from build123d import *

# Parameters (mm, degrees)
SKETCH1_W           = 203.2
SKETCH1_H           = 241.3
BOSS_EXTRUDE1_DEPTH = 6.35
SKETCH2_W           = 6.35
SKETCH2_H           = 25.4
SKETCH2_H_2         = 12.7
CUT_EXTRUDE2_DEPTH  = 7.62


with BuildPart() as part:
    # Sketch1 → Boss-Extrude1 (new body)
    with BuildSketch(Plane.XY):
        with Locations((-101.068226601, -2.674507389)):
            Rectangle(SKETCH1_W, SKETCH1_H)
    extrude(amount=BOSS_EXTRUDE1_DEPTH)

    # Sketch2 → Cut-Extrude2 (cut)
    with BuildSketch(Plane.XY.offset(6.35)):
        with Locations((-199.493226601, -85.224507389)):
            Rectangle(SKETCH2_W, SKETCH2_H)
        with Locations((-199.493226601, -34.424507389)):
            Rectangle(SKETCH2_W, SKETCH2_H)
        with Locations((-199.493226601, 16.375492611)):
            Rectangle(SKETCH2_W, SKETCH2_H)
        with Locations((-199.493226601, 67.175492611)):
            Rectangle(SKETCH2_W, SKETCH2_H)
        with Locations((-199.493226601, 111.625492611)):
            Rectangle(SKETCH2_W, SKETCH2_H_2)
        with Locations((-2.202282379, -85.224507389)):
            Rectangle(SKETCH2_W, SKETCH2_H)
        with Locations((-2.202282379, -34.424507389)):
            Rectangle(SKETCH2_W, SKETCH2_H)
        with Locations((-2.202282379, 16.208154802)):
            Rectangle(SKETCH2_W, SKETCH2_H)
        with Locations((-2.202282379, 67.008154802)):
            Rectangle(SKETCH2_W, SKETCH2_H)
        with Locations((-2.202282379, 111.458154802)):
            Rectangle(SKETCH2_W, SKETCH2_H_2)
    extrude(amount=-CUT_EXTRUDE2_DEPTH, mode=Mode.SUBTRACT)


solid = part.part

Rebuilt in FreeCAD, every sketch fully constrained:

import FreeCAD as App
import Part
import Sketcher
Q = App.Units.Quantity


def add_polygon(sketch, points):
    """Adds a closed chain of lines whose ends are joined by coincident constraints."""
    first, n = sketch.GeometryCount, len(points)
    for a, b in zip(points, points[1:] + points[:1]):
        sketch.addGeometry(Part.LineSegment(App.Vector(*a, 0), App.Vector(*b, 0)), False)
    for i in range(n):
        sketch.addConstraint(Sketcher.Constraint("Coincident", first + i, 2, first + (i + 1) % n, 1))

doc = App.newDocument("Part")
params = doc.addObject("Spreadsheet::Sheet", "Params")
for row, (alias, value) in enumerate([
    ("sketch1_width", "8 in"),
    ("sketch1_height", "9.5 in"),
    ("pad1_length", "0.25 in"),
    ("sketch2_height", "1 in"),
    ("sketch2_height2", "0.5 in"),
    ("sketch2_width", "0.25 in"),
    ("pocket1_length", "0.3 in"),
], start=1):
    params.set(f"A{row}", alias)
    params.set(f"B{row}", "=" + value)
    params.setAlias(f"B{row}", alias)

body = doc.addObject("PartDesign::Body", "Body")

# Sketch on XY plane
sketch1 = doc.addObject("Sketcher::SketchObject", "Sketch")
body.addObject(sketch1)
sketch1.AttachmentSupport = (doc.XY_Plane, [""])
sketch1.MapMode = "FlatFace"
add_polygon(sketch1, [(-203, 118), (-203, -123), (1, -123), (1, 118)])  # lines 0-3
sketch1.addConstraint(Sketcher.Constraint("Vertical", 0))
sketch1.addConstraint(Sketcher.Constraint("Horizontal", 1))
sketch1.addConstraint(Sketcher.Constraint("Vertical", 2))
sketch1.addConstraint(Sketcher.Constraint("Horizontal", 3))
sketch1.addConstraint(Sketcher.Constraint("DistanceX", 1, 1, 1, 2, Q("8 in")))
sketch1.addConstraint(Sketcher.Constraint("DistanceY", 0, 2, 0, 1, Q("9.5 in")))
sketch1.addConstraint(Sketcher.Constraint("DistanceX", 0, 2, -1, 1, 202.668227))
sketch1.addConstraint(Sketcher.Constraint("DistanceY", 0, 2, -1, 1, 123.324507))
sketch1.setExpression("Constraints[8]", "Params.sketch1_width")
sketch1.setExpression("Constraints[9]", "Params.sketch1_height")
pad1 = doc.addObject("PartDesign::Pad", "Pad")
body.addObject(pad1)
pad1.Profile = sketch1
pad1.setExpression("Length", "Params.pad1_length")

# Sketch on XY plane
sketch2 = doc.addObject("Sketcher::SketchObject", "Sketch001")
body.addObject(sketch2)
sketch2.AttachmentSupport = (doc.XY_Plane, [""])
sketch2.MapMode = "FlatFace"
sketch2.AttachmentOffset = App.Placement(App.Vector(0, 0, 0.25 * 25.4), App.Rotation())
add_polygon(sketch2, [(-203, -73), (-203, -98), (-196, -98), (-196, -73)])  # lines 0-3
add_polygon(sketch2, [(-203, -22), (-203, -47), (-196, -47), (-196, -22)])  # lines 4-7
add_polygon(sketch2, [(-203, 29), (-203, 4), (-196, 4), (-196, 29)])  # lines 8-11
add_polygon(sketch2, [(-203, 80), (-203, 54), (-196, 54), (-196, 80)])  # lines 12-15
add_polygon(sketch2, [(-203, 118), (-203, 105), (-196, 105), (-196, 118)])  # lines 16-19
add_polygon(sketch2, [(-5, -73), (-5, -98), (1, -98), (1, -73)])  # lines 20-23
add_polygon(sketch2, [(-5, -22), (-5, -47), (1, -47), (1, -22)])  # lines 24-27
add_polygon(sketch2, [(-5, 29), (-5, 4), (1, 4), (1, 29)])  # lines 28-31
add_polygon(sketch2, [(-5, 80), (-5, 54), (1, 54), (1, 80)])  # lines 32-35
add_polygon(sketch2, [(-5, 118), (-5, 105), (1, 105), (1, 118)])  # lines 36-39
sketch2.addConstraint(Sketcher.Constraint("Vertical", 0))
sketch2.addConstraint(Sketcher.Constraint("Horizontal", 1))
sketch2.addConstraint(Sketcher.Constraint("Vertical", 2))
sketch2.addConstraint(Sketcher.Constraint("Horizontal", 3))
sketch2.addConstraint(Sketcher.Constraint("Vertical", 4))
sketch2.addConstraint(Sketcher.Constraint("Horizontal", 5))
sketch2.addConstraint(Sketcher.Constraint("Vertical", 6))
sketch2.addConstraint(Sketcher.Constraint("Horizontal", 7))
sketch2.addConstraint(Sketcher.Constraint("Vertical", 8))
sketch2.addConstraint(Sketcher.Constraint("Horizontal", 9))
sketch2.addConstraint(Sketcher.Constraint("Vertical", 10))
sketch2.addConstraint(Sketcher.Constraint("Horizontal", 11))
sketch2.addConstraint(Sketcher.Constraint("Vertical", 12))
sketch2.addConstraint(Sketcher.Constraint("Horizontal", 13))
sketch2.addConstraint(Sketcher.Constraint("Vertical", 14))
sketch2.addConstraint(Sketcher.Constraint("Horizontal", 15))
sketch2.addConstraint(Sketcher.Constraint("Vertical", 16))
sketch2.addConstraint(Sketcher.Constraint("Horizontal", 17))
sketch2.addConstraint(Sketcher.Constraint("Vertical", 18))
sketch2.addConstraint(Sketcher.Constraint("Horizontal", 19))
sketch2.addConstraint(Sketcher.Constraint("Vertical", 20))
sketch2.addConstraint(Sketcher.Constraint("Horizontal", 21))
sketch2.addConstraint(Sketcher.Constraint("Vertical", 22))
sketch2.addConstraint(Sketcher.Constraint("Horizontal", 23))
sketch2.addConstraint(Sketcher.Constraint("Vertical", 24))
sketch2.addConstraint(Sketcher.Constraint("Horizontal", 25))
sketch2.addConstraint(Sketcher.Constraint("Vertical", 26))
sketch2.addConstraint(Sketcher.Constraint("Horizontal", 27))
sketch2.addConstraint(Sketcher.Constraint("Vertical", 28))
sketch2.addConstraint(Sketcher.Constraint("Horizontal", 29))
sketch2.addConstraint(Sketcher.Constraint("Vertical", 30))
sketch2.addConstraint(Sketcher.Constraint("Horizontal", 31))
sketch2.addConstraint(Sketcher.Constraint("Vertical", 32))
sketch2.addConstraint(Sketcher.Constraint("Horizontal", 33))
sketch2.addConstraint(Sketcher.Constraint("Vertical", 34))
sketch2.addConstraint(Sketcher.Constraint("Horizontal", 35))
sketch2.addConstraint(Sketcher.Constraint("Vertical", 36))
sketch2.addConstraint(Sketcher.Constraint("Horizontal", 37))
sketch2.addConstraint(Sketcher.Constraint("Vertical", 38))
sketch2.addConstraint(Sketcher.Constraint("Horizontal", 39))
sketch2.addConstraint(Sketcher.Constraint("Horizontal", 1, 2, 20, 2))
sketch2.addConstraint(Sketcher.Constraint("Horizontal", 3, 2, 22, 2))
sketch2.addConstraint(Sketcher.Constraint("Horizontal", 5, 2, 24, 2))
sketch2.addConstraint(Sketcher.Constraint("Horizontal", 7, 2, 26, 2))
sketch2.addConstraint(Sketcher.Constraint("Vertical", 3, 2, 4, 2))
sketch2.addConstraint(Sketcher.Constraint("Vertical", 2, 2, 5, 2))
sketch2.addConstraint(Sketcher.Constraint("Vertical", 7, 2, 8, 2))
sketch2.addConstraint(Sketcher.Constraint("Vertical", 6, 2, 9, 2))
sketch2.addConstraint(Sketcher.Constraint("Vertical", 11, 2, 12, 2))
sketch2.addConstraint(Sketcher.Constraint("Vertical", 10, 2, 13, 2))
sketch2.addConstraint(Sketcher.Constraint("Vertical", 15, 2, 16, 2))
sketch2.addConstraint(Sketcher.Constraint("Vertical", 14, 2, 17, 2))
sketch2.addConstraint(Sketcher.Constraint("Vertical", 23, 2, 24, 2))
sketch2.addConstraint(Sketcher.Constraint("Vertical", 22, 2, 25, 2))
sketch2.addConstraint(Sketcher.Constraint("Vertical", 27, 2, 28, 2))
sketch2.addConstraint(Sketcher.Constraint("Vertical", 26, 2, 29, 2))
sketch2.addConstraint(Sketcher.Constraint("Vertical", 31, 2, 32, 2))
sketch2.addConstraint(Sketcher.Constraint("Vertical", 30, 2, 33, 2))
sketch2.addConstraint(Sketcher.Constraint("Vertical", 35, 2, 36, 2))
sketch2.addConstraint(Sketcher.Constraint("Vertical", 34, 2, 37, 2))
sketch2.addConstraint(Sketcher.Constraint("Equal", 19, 21))
sketch2.addConstraint(Sketcher.Constraint("Equal", 2, 4))
sketch2.addConstraint(Sketcher.Constraint("Equal", 6, 8))
sketch2.addConstraint(Sketcher.Constraint("Equal", 10, 12))
sketch2.addConstraint(Sketcher.Constraint("Equal", 26, 28))
sketch2.addConstraint(Sketcher.Constraint("Equal", 30, 32))
sketch2.addConstraint(Sketcher.Constraint("Equal", 18, 36))
sketch2.addConstraint(Sketcher.Constraint("DistanceY", 0, 2, 0, 1, Q("1 in")))
sketch2.addConstraint(Sketcher.Constraint("DistanceY", 16, 2, 16, 1, Q("0.5 in")))
sketch2.addConstraint(Sketcher.Constraint("DistanceY", 3, 2, 4, 2, Q("1 in")))
sketch2.addConstraint(Sketcher.Constraint("DistanceY", 7, 2, 8, 2, Q("1 in")))
sketch2.addConstraint(Sketcher.Constraint("DistanceY", 11, 2, 12, 2, Q("1 in")))
sketch2.addConstraint(Sketcher.Constraint("DistanceY", 15, 2, 16, 2, Q("1 in")))
sketch2.addConstraint(Sketcher.Constraint("DistanceY", 31, 2, 32, 2, Q("1 in")))
sketch2.addConstraint(Sketcher.Constraint("DistanceY", 35, 2, 36, 2, Q("1 in")))
sketch2.addConstraint(Sketcher.Constraint("DistanceX", 1, 1, 1, 2, Q("0.25 in")))
sketch2.addConstraint(Sketcher.Constraint("DistanceX", 0, 2, -1, 1, 202.668227))
sketch2.addConstraint(Sketcher.Constraint("DistanceY", 0, 2, -1, 1, 97.924507))
sketch2.addConstraint(Sketcher.Constraint("DistanceX", 20, 2, -1, 1, 5.377282))
sketch2.addConstraint(Sketcher.Constraint("DistanceY", -1, 1, 28, 2, 3.508155))
sketch2.setExpression("Constraints[107]", "Params.sketch2_height")
sketch2.setExpression("Constraints[108]", "Params.sketch2_height2")
sketch2.setExpression("Constraints[115]", "Params.sketch2_width")
pocket1 = doc.addObject("PartDesign::Pocket", "Pocket")
body.addObject(pocket1)
pocket1.Profile = sketch2
pocket1.setExpression("Length", "Params.pocket1_length")

doc.recompute()
